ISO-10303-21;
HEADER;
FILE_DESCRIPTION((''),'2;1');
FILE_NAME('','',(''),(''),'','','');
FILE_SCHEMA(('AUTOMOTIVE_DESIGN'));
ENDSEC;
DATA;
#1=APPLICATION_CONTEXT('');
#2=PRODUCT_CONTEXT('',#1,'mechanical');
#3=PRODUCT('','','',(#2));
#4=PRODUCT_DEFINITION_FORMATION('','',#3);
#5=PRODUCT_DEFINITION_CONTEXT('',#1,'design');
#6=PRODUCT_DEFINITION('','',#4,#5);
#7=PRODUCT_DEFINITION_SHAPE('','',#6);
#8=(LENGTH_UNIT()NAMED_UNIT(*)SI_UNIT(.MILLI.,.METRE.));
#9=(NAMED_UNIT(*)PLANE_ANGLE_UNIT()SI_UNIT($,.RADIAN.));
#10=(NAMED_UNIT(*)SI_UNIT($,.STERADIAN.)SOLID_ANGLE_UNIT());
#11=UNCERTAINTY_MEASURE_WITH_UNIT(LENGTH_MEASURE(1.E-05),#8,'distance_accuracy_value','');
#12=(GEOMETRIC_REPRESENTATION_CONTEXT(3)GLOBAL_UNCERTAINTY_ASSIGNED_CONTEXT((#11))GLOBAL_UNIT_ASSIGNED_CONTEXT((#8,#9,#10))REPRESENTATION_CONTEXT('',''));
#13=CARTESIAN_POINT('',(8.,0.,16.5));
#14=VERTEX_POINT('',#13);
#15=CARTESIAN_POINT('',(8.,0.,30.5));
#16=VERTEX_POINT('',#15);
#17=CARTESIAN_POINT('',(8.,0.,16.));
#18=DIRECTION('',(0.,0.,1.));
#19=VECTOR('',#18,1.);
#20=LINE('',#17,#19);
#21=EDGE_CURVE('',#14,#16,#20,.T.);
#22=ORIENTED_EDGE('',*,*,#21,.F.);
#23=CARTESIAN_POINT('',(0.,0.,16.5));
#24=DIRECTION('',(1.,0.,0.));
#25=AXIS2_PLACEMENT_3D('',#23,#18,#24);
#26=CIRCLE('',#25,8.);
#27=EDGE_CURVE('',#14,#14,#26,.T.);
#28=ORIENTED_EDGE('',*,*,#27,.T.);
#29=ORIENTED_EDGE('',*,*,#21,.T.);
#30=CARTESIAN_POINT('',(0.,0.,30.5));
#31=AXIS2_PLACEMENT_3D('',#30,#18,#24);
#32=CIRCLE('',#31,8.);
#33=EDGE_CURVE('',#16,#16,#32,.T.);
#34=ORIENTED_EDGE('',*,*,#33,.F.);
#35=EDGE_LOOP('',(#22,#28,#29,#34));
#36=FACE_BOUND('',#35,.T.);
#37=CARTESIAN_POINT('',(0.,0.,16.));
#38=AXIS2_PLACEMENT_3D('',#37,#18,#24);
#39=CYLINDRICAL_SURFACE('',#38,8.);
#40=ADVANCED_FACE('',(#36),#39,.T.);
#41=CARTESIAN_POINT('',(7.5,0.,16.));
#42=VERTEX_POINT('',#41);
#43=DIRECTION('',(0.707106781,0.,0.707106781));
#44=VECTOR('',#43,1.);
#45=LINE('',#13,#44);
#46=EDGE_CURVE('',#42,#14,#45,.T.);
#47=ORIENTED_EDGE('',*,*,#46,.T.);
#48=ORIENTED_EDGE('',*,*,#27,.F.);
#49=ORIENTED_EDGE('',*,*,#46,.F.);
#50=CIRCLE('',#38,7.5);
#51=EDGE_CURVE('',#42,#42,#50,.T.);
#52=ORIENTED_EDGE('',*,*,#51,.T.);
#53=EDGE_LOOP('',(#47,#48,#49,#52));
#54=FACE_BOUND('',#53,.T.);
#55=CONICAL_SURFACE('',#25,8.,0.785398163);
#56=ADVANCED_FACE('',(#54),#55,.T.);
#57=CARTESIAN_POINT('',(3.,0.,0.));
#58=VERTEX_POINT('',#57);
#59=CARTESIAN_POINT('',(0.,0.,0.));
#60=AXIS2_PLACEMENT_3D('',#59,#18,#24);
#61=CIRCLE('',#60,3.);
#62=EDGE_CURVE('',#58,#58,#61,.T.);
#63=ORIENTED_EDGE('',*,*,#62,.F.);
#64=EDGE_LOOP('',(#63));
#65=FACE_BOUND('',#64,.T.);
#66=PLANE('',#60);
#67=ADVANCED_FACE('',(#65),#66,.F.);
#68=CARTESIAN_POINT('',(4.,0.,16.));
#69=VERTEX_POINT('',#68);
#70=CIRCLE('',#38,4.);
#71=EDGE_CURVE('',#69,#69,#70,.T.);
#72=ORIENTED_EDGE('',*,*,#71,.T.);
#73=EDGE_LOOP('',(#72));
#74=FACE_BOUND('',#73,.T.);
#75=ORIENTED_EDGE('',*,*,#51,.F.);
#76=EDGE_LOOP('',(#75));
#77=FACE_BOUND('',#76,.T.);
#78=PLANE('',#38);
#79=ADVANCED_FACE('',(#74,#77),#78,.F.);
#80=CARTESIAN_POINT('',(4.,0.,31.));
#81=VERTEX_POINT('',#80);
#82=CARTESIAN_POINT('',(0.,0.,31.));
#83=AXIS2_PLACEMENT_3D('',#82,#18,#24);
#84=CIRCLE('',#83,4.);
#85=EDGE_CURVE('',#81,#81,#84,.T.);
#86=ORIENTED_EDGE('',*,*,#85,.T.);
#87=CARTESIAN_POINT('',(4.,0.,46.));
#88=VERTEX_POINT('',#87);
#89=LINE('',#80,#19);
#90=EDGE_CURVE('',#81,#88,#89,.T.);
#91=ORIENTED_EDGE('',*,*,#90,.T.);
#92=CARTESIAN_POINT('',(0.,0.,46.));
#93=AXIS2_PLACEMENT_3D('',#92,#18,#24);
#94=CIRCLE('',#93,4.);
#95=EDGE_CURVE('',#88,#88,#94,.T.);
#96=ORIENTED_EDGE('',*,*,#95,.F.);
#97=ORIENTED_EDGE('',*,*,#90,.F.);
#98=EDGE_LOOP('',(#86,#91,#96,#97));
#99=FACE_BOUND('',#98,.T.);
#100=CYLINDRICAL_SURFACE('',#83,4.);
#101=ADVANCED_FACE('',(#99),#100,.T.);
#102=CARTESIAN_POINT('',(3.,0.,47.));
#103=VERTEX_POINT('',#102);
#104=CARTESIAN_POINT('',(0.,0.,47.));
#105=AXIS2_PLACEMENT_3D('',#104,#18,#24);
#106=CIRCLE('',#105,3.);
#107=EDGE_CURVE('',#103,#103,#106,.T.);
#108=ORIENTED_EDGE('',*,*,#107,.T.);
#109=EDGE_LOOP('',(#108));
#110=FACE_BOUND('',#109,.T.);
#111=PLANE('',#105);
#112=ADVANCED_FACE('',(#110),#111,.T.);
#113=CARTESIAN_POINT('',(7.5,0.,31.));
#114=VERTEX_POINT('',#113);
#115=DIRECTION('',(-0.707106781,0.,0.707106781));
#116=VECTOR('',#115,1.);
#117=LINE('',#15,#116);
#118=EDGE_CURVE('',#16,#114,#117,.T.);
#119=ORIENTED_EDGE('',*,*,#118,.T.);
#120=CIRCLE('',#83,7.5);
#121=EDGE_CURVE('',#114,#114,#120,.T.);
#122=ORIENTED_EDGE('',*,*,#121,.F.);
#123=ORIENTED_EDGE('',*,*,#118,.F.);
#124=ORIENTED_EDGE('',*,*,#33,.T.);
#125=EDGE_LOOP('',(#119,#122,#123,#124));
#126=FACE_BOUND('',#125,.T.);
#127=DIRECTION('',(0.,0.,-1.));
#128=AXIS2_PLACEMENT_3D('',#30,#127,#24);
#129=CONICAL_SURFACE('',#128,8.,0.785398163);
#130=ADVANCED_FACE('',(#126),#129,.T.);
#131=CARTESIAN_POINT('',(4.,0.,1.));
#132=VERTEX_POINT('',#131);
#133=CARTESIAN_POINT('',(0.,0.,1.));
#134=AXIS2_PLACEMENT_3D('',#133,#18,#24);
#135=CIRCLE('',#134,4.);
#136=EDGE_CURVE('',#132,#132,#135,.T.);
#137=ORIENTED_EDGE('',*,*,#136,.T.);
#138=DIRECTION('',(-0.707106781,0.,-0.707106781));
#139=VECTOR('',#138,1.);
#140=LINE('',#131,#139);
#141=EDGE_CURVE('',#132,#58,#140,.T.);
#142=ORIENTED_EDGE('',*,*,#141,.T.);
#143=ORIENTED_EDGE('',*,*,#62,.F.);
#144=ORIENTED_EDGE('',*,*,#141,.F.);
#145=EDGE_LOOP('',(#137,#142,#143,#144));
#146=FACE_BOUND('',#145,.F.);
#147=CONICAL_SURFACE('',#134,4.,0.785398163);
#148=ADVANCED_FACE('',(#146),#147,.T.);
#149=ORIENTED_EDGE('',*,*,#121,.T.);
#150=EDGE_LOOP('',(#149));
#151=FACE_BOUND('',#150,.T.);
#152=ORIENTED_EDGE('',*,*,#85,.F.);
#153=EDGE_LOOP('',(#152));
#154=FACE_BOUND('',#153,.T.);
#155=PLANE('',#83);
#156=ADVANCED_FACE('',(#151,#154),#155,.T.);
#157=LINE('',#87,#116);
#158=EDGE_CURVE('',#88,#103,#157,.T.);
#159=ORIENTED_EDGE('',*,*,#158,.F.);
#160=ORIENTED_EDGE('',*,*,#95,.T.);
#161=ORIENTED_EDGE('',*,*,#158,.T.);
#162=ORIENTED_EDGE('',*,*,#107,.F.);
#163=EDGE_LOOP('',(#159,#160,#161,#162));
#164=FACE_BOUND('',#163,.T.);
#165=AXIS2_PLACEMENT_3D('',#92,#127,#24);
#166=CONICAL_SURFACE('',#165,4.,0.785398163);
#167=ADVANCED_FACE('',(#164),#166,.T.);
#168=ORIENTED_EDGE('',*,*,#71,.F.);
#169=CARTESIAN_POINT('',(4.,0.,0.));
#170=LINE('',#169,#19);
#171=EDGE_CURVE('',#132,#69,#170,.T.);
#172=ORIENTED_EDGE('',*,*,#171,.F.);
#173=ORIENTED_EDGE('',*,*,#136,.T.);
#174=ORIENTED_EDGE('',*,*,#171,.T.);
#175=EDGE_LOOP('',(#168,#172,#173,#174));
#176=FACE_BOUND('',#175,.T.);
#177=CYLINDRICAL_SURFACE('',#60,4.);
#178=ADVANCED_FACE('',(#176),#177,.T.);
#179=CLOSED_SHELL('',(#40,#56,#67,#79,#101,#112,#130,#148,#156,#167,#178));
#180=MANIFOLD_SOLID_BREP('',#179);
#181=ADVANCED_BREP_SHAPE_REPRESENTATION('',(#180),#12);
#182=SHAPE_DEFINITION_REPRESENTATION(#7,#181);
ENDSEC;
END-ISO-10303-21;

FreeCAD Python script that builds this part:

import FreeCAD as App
import Part
import Sketcher


def edges_at(feature, points):
    """Names of the edges that pass closest to the given points."""
    edges = feature.Shape.Edges
    near = lambda p: min(range(len(edges)), key=lambda i: edges[i].distToShape(Part.Vertex(*p))[0])
    return sorted({f"Edge{near(p) + 1}" for p in points})


def add_polygon(sketch, points):
    """Adds a closed chain of lines whose ends are joined by coincident constraints."""
    first, n = sketch.GeometryCount, len(points)
    for a, b in zip(points, points[1:] + points[:1]):
        sketch.addGeometry(Part.LineSegment(App.Vector(*a, 0), App.Vector(*b, 0)), False)
    for i in range(n):
        sketch.addConstraint(Sketcher.Constraint("Coincident", first + i, 2, first + (i + 1) % n, 1))

doc = App.newDocument("Part")
body = doc.addObject("PartDesign::Body", "Body")

# Sketch on XZ plane
sketch1 = body.newObject("Sketcher::SketchObject", "Sketch")
sketch1.AttachmentSupport = (doc.getObject("XZ_Plane"), [""])
sketch1.MapMode = "FlatFace"
add_polygon(sketch1, [(0, 47), (0, 0), (4, 0), (4, 16), (8, 16), (8, 31), (4, 31), (4, 47)])  # lines 0-7
sketch1.addConstraint([
    Sketcher.Constraint("Vertical", 0),
    Sketcher.Constraint("Horizontal", 1),
    Sketcher.Constraint("Vertical", 2),
    Sketcher.Constraint("Horizontal", 3),
    Sketcher.Constraint("Vertical", 4),
    Sketcher.Constraint("Horizontal", 5),
    Sketcher.Constraint("Vertical", 6),
    Sketcher.Constraint("Horizontal", 7),
    Sketcher.Constraint("Coincident", 0, 2, -1, 1),
    Sketcher.Constraint("Vertical", 2, 2, 5, 2),
    Sketcher.Constraint("Equal", 1, 3),
    Sketcher.Constraint("Equal", 2, 6),
    Sketcher.Constraint("DistanceX", 1, 1, 1, 2, 4.0),
    Sketcher.Constraint("DistanceY", 0, 2, 0, 1, 47.0),
    Sketcher.Constraint("DistanceY", 2, 1, 2, 2, 16.0),
])
revolution = body.newObject("PartDesign::Revolution", "Revolution")
revolution.Profile = sketch1
revolution.ReferenceAxis = (sketch1, ["V_Axis"])
revolution.Angle = 360
doc.recompute()

chamfer = body.newObject("PartDesign::Chamfer", "Chamfer")
chamfer.Base = (revolution, edges_at(revolution, [(-8, 0, 31), (-8, 0, 16)]))
chamfer.Size = 0.5
doc.recompute()

chamfer2 = body.newObject("PartDesign::Chamfer", "Chamfer001")
chamfer2.Base = (chamfer, edges_at(chamfer, [(-4, 0, 47), (-4, 0, 0)]))
chamfer2.Size = 1

doc.recompute()
